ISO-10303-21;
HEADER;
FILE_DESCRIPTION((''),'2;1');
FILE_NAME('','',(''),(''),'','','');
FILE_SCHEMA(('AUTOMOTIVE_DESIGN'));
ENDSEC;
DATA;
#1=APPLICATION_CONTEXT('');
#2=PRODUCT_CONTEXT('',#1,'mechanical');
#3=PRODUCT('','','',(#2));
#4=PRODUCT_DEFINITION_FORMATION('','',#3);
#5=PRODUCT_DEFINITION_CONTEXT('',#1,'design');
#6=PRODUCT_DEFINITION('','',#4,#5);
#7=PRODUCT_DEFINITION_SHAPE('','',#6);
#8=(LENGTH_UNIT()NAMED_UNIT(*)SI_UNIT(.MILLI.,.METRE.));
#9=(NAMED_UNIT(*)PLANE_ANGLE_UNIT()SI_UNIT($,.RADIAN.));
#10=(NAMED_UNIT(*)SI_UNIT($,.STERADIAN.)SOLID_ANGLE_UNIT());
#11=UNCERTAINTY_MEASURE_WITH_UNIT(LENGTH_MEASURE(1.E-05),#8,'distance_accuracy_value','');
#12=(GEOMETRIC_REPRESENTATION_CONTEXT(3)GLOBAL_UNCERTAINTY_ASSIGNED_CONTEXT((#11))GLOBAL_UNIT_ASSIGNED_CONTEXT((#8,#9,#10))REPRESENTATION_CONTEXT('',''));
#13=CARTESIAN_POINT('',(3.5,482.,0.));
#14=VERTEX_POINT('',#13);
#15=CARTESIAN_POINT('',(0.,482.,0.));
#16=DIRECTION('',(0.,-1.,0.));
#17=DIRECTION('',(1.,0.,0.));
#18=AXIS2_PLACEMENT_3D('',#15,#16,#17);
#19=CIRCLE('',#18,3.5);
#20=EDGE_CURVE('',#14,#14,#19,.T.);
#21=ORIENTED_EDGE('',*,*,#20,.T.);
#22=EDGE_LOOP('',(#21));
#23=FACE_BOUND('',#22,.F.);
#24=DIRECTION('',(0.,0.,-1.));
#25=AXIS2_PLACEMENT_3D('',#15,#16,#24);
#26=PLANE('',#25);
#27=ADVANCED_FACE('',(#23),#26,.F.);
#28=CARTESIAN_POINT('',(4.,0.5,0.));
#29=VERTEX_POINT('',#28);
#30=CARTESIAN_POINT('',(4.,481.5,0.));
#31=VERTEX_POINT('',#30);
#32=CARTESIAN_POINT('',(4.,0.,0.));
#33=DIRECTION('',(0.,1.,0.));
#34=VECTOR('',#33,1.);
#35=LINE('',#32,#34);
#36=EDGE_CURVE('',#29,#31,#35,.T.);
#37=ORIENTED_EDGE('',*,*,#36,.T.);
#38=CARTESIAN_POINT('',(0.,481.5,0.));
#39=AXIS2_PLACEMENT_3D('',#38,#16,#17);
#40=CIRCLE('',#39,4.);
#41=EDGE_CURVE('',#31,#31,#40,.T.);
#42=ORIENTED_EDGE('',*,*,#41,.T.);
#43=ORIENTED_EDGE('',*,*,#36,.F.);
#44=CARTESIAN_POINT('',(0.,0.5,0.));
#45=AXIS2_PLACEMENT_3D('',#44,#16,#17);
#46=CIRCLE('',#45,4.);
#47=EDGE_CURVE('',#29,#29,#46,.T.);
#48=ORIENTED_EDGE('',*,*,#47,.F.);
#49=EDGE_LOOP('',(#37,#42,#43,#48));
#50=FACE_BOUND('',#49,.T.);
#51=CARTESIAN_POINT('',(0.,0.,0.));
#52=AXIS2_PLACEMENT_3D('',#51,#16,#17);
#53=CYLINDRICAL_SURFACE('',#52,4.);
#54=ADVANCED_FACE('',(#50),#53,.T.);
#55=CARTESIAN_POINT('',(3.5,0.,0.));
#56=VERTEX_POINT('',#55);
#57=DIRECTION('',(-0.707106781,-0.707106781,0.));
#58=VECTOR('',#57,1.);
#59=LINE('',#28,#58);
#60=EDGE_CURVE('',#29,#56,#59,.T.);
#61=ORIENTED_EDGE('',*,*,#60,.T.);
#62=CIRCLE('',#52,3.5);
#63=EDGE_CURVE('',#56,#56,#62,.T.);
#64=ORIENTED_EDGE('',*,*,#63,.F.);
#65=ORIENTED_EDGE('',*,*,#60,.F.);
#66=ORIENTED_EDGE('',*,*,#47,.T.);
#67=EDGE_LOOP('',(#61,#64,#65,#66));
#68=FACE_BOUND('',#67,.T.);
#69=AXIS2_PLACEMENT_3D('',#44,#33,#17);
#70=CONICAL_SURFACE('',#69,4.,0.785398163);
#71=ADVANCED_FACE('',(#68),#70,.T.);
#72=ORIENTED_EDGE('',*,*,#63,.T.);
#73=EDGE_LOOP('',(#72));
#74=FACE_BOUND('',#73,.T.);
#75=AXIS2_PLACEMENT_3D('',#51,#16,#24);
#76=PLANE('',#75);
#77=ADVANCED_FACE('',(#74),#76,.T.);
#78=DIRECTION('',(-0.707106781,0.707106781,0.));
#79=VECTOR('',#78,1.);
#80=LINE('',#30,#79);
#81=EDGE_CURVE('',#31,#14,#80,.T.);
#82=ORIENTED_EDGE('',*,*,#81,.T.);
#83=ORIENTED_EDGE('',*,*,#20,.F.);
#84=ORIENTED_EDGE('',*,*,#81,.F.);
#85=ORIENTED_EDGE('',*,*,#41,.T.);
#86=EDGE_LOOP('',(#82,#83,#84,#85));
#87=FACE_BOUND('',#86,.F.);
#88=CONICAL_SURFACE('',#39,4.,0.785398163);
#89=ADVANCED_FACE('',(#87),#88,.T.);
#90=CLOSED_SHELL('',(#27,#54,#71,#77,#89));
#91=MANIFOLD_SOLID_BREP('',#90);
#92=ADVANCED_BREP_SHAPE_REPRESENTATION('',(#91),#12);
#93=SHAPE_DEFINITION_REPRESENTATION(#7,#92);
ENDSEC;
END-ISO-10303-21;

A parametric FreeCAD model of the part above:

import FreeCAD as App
import Part
import Sketcher


def edges_at(feature, points):
    """Names of the edges that pass closest to the given points."""
    edges = feature.Shape.Edges
    near = lambda p: min(range(len(edges)), key=lambda i: edges[i].distToShape(Part.Vertex(*p))[0])
    return sorted({f"Edge{near(p) + 1}" for p in points})

doc = App.newDocument("Part")
body = doc.addObject("PartDesign::Body", "Body")

sketch1 = body.newObject("Sketcher::SketchObject", "Sketch")
sketch1.AttachmentSupport = (doc.getObject("XZ_Plane"), [""])
sketch1.MapMode = "FlatFace"
sketch1.addGeometry(Part.Circle(App.Vector(0, 0, 0), App.Vector(0, 0, 1), 4), False)
sketch1.addConstraint(Sketcher.Constraint("Coincident", 0, 3, -1, 1))
sketch1.addConstraint(Sketcher.Constraint("Diameter", 0, 8.0))
pad1 = body.newObject("PartDesign::Pad", "Pad")
pad1.Profile = sketch1
pad1.Length = 482
pad1.Reversed = True
doc.recompute()

chamfer = body.newObject("PartDesign::Chamfer", "Chamfer")
chamfer.Base = (pad1, edges_at(pad1, [(-4, 0, 0), (-4, 482, 0)]))
chamfer.Size = 0.5

doc.recompute()
